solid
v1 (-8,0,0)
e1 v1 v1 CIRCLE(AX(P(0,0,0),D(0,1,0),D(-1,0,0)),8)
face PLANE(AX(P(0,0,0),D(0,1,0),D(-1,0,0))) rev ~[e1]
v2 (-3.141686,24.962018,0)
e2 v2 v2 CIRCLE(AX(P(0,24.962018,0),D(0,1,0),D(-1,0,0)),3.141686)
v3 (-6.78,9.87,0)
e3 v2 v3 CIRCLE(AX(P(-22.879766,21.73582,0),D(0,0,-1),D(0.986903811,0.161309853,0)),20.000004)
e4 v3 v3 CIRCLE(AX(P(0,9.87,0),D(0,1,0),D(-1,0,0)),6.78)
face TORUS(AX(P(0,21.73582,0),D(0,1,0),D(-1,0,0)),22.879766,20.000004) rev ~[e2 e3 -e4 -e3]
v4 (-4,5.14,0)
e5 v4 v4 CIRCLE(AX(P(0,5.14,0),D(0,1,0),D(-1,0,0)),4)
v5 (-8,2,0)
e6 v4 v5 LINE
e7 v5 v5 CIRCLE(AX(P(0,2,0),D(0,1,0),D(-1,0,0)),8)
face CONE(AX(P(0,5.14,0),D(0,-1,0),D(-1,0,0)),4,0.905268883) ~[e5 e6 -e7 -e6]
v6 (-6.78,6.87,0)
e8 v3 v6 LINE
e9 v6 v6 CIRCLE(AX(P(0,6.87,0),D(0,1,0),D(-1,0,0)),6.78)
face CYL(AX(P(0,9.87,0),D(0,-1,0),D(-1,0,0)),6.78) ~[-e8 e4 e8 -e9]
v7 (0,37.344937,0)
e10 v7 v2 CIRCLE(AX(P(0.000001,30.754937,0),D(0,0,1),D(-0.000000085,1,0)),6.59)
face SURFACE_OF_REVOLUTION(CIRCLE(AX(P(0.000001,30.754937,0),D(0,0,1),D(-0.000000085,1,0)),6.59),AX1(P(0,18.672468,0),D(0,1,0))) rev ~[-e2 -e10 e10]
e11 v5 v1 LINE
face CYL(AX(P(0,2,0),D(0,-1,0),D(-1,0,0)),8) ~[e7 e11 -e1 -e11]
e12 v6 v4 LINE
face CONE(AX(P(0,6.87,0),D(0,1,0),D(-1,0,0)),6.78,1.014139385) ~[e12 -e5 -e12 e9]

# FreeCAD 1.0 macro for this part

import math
import FreeCAD as App
import Part
import Sketcher
Q = App.Units.Quantity

doc = App.newDocument("Part")
params = doc.addObject("Spreadsheet::Sheet", "Params")
for row, (alias, value) in enumerate([
    ("sketch1_width", "8 mm"),
    ("sketch1_height", "3 mm"),
    ("sketch1_height2", "2 mm"),
    ("sketch1_radius", "6.59 mm"),
    ("revolution_angle", "360 deg"),
], start=1):
    params.set(f"A{row}", alias)
    params.set(f"B{row}", "=" + value)
    params.setAlias(f"B{row}", alias)

body = doc.addObject("PartDesign::Body", "Body")

sketch1 = body.newObject("Sketcher::SketchObject", "Sketch")
sketch1.AttachmentSupport = (doc.getObject("XY_Plane"), [""])
sketch1.MapMode = "FlatFace"
sketch1.addGeometry([
    Part.LineSegment(App.Vector(-8, 0, 0), App.Vector(0, 0, 0)),
    Part.LineSegment(App.Vector(0, 0, 0), App.Vector(0, 37.3, 0)),
    Part.ArcOfCircle(Part.Circle(App.Vector(0, 30.8, 0), App.Vector(0, 0, 1), 6.6), math.radians(90), math.radians(242)),
    Part.ArcOfCircle(Part.Circle(App.Vector(-22.9, 21.7, 0), App.Vector(0, 0, 1), 20), math.radians(-36), math.radians(9)),
    Part.LineSegment(App.Vector(-6.8, 9.9, 0), App.Vector(-6.8, 6.9, 0)),
    Part.LineSegment(App.Vector(-6.8, 6.9, 0), App.Vector(-4, 5.1, 0)),
    Part.LineSegment(App.Vector(-4, 5.1, 0), App.Vector(-8, 2, 0)),
    Part.LineSegment(App.Vector(-8, 2, 0), App.Vector(-8, 0, 0)),
], False)
sketch1.addConstraint([
    Sketcher.Constraint("Coincident", 0, 2, 1, 1),
    Sketcher.Constraint("Coincident", 1, 2, 2, 1),
    Sketcher.Constraint("Coincident", 2, 2, 3, 2),
    Sketcher.Constraint("Coincident", 3, 1, 4, 1),
    Sketcher.Constraint("Coincident", 4, 2, 5, 1),
    Sketcher.Constraint("Coincident", 5, 2, 6, 1),
    Sketcher.Constraint("Coincident", 6, 2, 7, 1),
    Sketcher.Constraint("Coincident", 7, 2, 0, 1),
    Sketcher.Constraint("Horizontal", 0),
    Sketcher.Constraint("Vertical", 1),
    Sketcher.Constraint("Vertical", 4),
    Sketcher.Constraint("Vertical", 7),
    Sketcher.Constraint("Coincident", 0, 2, -1, 1),
    Sketcher.Constraint("PointOnObject", 2, 3, -2),
    Sketcher.Constraint("DistanceX", 0, 1, 0, 2, Q("8 mm")),
    Sketcher.Constraint("DistanceY", 4, 2, 4, 1, Q("3 mm")),
    Sketcher.Constraint("DistanceY", 7, 2, 7, 1, Q("2 mm")),
    Sketcher.Constraint("Radius", 2, Q("6.59 mm")),
    Sketcher.Constraint("DistanceX", 5, 2, -1, 1, Q("4 mm")),
    Sketcher.Constraint("DistanceX", 3, 1, -1, 1, Q("6.78 mm")),
    Sketcher.Constraint("DistanceY", -1, 1, 3, 1, Q("9.87 mm")),
    Sketcher.Constraint("DistanceY", -1, 1, 5, 2, Q("5.14 mm")),
    Sketcher.Constraint("Radius", 3, Q("20.000004 mm")),
    Sketcher.Constraint("DistanceY", 1, 1, 1, 2, Q("37.344937 mm")),
    Sketcher.Constraint("DistanceY", -1, 1, 3, 3, Q("21.73582 mm")),
])
sketch1.setExpression("Constraints[14]", "Params.sketch1_width")
sketch1.setExpression("Constraints[15]", "Params.sketch1_height")
sketch1.setExpression("Constraints[16]", "Params.sketch1_height2")
sketch1.setExpression("Constraints[17]", "Params.sketch1_radius")
revolution = body.newObject("PartDesign::Revolution", "Revolution")
revolution.Profile = sketch1
revolution.ReferenceAxis = (sketch1, ["V_Axis"])
revolution.setExpression("Angle", "Params.revolution_angle")

doc.recompute()
